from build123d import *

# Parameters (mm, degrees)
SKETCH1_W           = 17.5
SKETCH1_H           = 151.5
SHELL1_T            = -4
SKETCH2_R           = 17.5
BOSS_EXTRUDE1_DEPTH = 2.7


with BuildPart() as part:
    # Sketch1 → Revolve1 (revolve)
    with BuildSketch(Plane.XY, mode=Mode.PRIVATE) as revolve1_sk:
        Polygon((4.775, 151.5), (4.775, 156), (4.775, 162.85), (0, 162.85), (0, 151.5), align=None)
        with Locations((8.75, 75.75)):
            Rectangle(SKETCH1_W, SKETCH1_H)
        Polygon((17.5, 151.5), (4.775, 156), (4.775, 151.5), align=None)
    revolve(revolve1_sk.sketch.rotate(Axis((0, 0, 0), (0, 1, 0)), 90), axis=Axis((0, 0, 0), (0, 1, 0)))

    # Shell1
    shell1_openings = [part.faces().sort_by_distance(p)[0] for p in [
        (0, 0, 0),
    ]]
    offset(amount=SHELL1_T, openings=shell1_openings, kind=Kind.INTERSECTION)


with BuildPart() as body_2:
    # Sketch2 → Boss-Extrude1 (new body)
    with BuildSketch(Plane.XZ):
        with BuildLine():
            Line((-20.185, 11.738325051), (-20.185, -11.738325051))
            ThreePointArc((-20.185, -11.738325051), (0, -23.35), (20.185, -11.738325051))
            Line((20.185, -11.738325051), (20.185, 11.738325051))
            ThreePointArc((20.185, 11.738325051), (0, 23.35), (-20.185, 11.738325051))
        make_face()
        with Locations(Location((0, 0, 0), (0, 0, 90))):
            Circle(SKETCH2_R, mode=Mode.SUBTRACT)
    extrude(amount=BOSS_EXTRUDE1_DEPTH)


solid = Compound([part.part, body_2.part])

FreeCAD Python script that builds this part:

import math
import FreeCAD as App
import Part
import Sketcher

V = App.Vector
Q = App.Units.Quantity


def faces_at(feature, points):
    """Names of the faces that lie closest to the given points."""
    faces = feature.Shape.Faces
    near = lambda p: min(range(len(faces)), key=lambda i: faces[i].distToShape(Part.Vertex(*p))[0])
    return sorted({f"Face{near(p) + 1}" for p in points})


def add_polygon(sketch, points):
    """Adds a closed chain of lines whose ends are joined by coincident constraints."""
    first, n = sketch.GeometryCount, len(points)
    for a, b in zip(points, points[1:] + points[:1]):
        sketch.addGeometry(Part.LineSegment(App.Vector(*a, 0), App.Vector(*b, 0)), False)
    for i in range(n):
        sketch.addConstraint(Sketcher.Constraint("Coincident", first + i, 2, first + (i + 1) % n, 1))

doc = App.newDocument("Part")
body = doc.addObject("PartDesign::Body", "Body")

sketch1 = doc.addObject("Sketcher::SketchObject", "Sketch")
body.addObject(sketch1)
sketch1.AttachmentSupport = (doc.XY_Plane, [""])
sketch1.MapMode = "FlatFace"
add_polygon(sketch1, [(4.8, 156), (4.8, 162.8), (0, 162.8), (0, 0), (17.5, 0), (17.5, 151.5)])
sketch1.addConstraint(Sketcher.Constraint("Vertical", 0))
sketch1.addConstraint(Sketcher.Constraint("Horizontal", 1))
sketch1.addConstraint(Sketcher.Constraint("Vertical", 2))
sketch1.addConstraint(Sketcher.Constraint("Horizontal", 3))
sketch1.addConstraint(Sketcher.Constraint("Vertical", 4))
sketch1.addConstraint(Sketcher.Constraint("Coincident", 2, 2, -1, 1))
sketch1.addConstraint(Sketcher.Constraint("DistanceX", 3, 1, 3, 2, Q("17.5 mm")))
sketch1.addConstraint(Sketcher.Constraint("DistanceY", 4, 1, 4, 2, Q("151.5 mm")))
sketch1.addConstraint(Sketcher.Constraint("DistanceY", -1, 1, 5, 2, Q("156 mm")))
sketch1.addConstraint(Sketcher.Constraint("DistanceY", 0, 1, 0, 2, Q("6.85 mm")))
sketch1.addConstraint(Sketcher.Constraint("DistanceX", 1, 2, 1, 1, Q("4.775 mm")))
revolution = doc.addObject("PartDesign::Revolution", "Revolution")
body.addObject(revolution)
revolution.Profile = sketch1
revolution.ReferenceAxis = (sketch1, ["V_Axis"])
revolution.Angle = 360
doc.recompute()

thickness = doc.addObject("PartDesign::Thickness", "Thickness")
body.addObject(thickness)
thickness.Base = (revolution, faces_at(revolution, [(0, 0, 0)]))
thickness.Value = 4
thickness.Reversed = True
thickness.Join = "Intersection"
body2 = doc.addObject("PartDesign::Body", "Body001")

sketch2 = doc.addObject("Sketcher::SketchObject", "Sketch001")
body2.addObject(sketch2)
sketch2.AttachmentSupport = (doc.getObject("XZ_Plane001"), [""])
sketch2.MapMode = "FlatFace"
sketch2.addGeometry(Part.LineSegment(V(-20, 12, 0), V(-20, -12, 0)), False)
sketch2.addGeometry(Part.ArcOfCircle(Part.Circle(V(0, 0, 0), V(0, 0, 1), 23), math.radians(-150), math.radians(-30)), False)
sketch2.addGeometry(Part.LineSegment(V(20, -12, 0), V(20, 12, 0)), False)
sketch2.addGeometry(Part.ArcOfCircle(Part.Circle(V(0, 0, 0), V(0, 0, 1), 23), math.radians(30), math.radians(150)), False)
sketch2.addGeometry(Part.Circle(V(0, 0, 0), V(0, 0, 1), 18), False)
sketch2.addConstraint(Sketcher.Constraint("Coincident", 0, 2, 1, 1))
sketch2.addConstraint(Sketcher.Constraint("Coincident", 1, 2, 2, 1))
sketch2.addConstraint(Sketcher.Constraint("Coincident", 2, 2, 3, 1))
sketch2.addConstraint(Sketcher.Constraint("Coincident", 3, 2, 0, 1))
sketch2.addConstraint(Sketcher.Constraint("Vertical", 0))
sketch2.addConstraint(Sketcher.Constraint("Vertical", 2))
sketch2.addConstraint(Sketcher.Constraint("Coincident", 1, 3, -1, 1))
sketch2.addConstraint(Sketcher.Constraint("Coincident", 3, 3, -1, 1))
sketch2.addConstraint(Sketcher.Constraint("Coincident", 4, 3, -1, 1))
sketch2.addConstraint(Sketcher.Constraint("Equal", 1, 3))
sketch2.addConstraint(Sketcher.Constraint("Horizontal", 0, 2, 1, 2))
sketch2.addConstraint(Sketcher.Constraint("Diameter", 4, Q("35 mm")))
sketch2.addConstraint(Sketcher.Constraint("Radius", 1, Q("23.35 mm")))
sketch2.addConstraint(Sketcher.Constraint("DistanceX", 0, 2, 1, 2, Q("40.37 mm")))
pad1 = doc.addObject("PartDesign::Pad", "Pad")
body2.addObject(pad1)
pad1.Profile = sketch2
pad1.Length = 2.7

doc.recompute()
